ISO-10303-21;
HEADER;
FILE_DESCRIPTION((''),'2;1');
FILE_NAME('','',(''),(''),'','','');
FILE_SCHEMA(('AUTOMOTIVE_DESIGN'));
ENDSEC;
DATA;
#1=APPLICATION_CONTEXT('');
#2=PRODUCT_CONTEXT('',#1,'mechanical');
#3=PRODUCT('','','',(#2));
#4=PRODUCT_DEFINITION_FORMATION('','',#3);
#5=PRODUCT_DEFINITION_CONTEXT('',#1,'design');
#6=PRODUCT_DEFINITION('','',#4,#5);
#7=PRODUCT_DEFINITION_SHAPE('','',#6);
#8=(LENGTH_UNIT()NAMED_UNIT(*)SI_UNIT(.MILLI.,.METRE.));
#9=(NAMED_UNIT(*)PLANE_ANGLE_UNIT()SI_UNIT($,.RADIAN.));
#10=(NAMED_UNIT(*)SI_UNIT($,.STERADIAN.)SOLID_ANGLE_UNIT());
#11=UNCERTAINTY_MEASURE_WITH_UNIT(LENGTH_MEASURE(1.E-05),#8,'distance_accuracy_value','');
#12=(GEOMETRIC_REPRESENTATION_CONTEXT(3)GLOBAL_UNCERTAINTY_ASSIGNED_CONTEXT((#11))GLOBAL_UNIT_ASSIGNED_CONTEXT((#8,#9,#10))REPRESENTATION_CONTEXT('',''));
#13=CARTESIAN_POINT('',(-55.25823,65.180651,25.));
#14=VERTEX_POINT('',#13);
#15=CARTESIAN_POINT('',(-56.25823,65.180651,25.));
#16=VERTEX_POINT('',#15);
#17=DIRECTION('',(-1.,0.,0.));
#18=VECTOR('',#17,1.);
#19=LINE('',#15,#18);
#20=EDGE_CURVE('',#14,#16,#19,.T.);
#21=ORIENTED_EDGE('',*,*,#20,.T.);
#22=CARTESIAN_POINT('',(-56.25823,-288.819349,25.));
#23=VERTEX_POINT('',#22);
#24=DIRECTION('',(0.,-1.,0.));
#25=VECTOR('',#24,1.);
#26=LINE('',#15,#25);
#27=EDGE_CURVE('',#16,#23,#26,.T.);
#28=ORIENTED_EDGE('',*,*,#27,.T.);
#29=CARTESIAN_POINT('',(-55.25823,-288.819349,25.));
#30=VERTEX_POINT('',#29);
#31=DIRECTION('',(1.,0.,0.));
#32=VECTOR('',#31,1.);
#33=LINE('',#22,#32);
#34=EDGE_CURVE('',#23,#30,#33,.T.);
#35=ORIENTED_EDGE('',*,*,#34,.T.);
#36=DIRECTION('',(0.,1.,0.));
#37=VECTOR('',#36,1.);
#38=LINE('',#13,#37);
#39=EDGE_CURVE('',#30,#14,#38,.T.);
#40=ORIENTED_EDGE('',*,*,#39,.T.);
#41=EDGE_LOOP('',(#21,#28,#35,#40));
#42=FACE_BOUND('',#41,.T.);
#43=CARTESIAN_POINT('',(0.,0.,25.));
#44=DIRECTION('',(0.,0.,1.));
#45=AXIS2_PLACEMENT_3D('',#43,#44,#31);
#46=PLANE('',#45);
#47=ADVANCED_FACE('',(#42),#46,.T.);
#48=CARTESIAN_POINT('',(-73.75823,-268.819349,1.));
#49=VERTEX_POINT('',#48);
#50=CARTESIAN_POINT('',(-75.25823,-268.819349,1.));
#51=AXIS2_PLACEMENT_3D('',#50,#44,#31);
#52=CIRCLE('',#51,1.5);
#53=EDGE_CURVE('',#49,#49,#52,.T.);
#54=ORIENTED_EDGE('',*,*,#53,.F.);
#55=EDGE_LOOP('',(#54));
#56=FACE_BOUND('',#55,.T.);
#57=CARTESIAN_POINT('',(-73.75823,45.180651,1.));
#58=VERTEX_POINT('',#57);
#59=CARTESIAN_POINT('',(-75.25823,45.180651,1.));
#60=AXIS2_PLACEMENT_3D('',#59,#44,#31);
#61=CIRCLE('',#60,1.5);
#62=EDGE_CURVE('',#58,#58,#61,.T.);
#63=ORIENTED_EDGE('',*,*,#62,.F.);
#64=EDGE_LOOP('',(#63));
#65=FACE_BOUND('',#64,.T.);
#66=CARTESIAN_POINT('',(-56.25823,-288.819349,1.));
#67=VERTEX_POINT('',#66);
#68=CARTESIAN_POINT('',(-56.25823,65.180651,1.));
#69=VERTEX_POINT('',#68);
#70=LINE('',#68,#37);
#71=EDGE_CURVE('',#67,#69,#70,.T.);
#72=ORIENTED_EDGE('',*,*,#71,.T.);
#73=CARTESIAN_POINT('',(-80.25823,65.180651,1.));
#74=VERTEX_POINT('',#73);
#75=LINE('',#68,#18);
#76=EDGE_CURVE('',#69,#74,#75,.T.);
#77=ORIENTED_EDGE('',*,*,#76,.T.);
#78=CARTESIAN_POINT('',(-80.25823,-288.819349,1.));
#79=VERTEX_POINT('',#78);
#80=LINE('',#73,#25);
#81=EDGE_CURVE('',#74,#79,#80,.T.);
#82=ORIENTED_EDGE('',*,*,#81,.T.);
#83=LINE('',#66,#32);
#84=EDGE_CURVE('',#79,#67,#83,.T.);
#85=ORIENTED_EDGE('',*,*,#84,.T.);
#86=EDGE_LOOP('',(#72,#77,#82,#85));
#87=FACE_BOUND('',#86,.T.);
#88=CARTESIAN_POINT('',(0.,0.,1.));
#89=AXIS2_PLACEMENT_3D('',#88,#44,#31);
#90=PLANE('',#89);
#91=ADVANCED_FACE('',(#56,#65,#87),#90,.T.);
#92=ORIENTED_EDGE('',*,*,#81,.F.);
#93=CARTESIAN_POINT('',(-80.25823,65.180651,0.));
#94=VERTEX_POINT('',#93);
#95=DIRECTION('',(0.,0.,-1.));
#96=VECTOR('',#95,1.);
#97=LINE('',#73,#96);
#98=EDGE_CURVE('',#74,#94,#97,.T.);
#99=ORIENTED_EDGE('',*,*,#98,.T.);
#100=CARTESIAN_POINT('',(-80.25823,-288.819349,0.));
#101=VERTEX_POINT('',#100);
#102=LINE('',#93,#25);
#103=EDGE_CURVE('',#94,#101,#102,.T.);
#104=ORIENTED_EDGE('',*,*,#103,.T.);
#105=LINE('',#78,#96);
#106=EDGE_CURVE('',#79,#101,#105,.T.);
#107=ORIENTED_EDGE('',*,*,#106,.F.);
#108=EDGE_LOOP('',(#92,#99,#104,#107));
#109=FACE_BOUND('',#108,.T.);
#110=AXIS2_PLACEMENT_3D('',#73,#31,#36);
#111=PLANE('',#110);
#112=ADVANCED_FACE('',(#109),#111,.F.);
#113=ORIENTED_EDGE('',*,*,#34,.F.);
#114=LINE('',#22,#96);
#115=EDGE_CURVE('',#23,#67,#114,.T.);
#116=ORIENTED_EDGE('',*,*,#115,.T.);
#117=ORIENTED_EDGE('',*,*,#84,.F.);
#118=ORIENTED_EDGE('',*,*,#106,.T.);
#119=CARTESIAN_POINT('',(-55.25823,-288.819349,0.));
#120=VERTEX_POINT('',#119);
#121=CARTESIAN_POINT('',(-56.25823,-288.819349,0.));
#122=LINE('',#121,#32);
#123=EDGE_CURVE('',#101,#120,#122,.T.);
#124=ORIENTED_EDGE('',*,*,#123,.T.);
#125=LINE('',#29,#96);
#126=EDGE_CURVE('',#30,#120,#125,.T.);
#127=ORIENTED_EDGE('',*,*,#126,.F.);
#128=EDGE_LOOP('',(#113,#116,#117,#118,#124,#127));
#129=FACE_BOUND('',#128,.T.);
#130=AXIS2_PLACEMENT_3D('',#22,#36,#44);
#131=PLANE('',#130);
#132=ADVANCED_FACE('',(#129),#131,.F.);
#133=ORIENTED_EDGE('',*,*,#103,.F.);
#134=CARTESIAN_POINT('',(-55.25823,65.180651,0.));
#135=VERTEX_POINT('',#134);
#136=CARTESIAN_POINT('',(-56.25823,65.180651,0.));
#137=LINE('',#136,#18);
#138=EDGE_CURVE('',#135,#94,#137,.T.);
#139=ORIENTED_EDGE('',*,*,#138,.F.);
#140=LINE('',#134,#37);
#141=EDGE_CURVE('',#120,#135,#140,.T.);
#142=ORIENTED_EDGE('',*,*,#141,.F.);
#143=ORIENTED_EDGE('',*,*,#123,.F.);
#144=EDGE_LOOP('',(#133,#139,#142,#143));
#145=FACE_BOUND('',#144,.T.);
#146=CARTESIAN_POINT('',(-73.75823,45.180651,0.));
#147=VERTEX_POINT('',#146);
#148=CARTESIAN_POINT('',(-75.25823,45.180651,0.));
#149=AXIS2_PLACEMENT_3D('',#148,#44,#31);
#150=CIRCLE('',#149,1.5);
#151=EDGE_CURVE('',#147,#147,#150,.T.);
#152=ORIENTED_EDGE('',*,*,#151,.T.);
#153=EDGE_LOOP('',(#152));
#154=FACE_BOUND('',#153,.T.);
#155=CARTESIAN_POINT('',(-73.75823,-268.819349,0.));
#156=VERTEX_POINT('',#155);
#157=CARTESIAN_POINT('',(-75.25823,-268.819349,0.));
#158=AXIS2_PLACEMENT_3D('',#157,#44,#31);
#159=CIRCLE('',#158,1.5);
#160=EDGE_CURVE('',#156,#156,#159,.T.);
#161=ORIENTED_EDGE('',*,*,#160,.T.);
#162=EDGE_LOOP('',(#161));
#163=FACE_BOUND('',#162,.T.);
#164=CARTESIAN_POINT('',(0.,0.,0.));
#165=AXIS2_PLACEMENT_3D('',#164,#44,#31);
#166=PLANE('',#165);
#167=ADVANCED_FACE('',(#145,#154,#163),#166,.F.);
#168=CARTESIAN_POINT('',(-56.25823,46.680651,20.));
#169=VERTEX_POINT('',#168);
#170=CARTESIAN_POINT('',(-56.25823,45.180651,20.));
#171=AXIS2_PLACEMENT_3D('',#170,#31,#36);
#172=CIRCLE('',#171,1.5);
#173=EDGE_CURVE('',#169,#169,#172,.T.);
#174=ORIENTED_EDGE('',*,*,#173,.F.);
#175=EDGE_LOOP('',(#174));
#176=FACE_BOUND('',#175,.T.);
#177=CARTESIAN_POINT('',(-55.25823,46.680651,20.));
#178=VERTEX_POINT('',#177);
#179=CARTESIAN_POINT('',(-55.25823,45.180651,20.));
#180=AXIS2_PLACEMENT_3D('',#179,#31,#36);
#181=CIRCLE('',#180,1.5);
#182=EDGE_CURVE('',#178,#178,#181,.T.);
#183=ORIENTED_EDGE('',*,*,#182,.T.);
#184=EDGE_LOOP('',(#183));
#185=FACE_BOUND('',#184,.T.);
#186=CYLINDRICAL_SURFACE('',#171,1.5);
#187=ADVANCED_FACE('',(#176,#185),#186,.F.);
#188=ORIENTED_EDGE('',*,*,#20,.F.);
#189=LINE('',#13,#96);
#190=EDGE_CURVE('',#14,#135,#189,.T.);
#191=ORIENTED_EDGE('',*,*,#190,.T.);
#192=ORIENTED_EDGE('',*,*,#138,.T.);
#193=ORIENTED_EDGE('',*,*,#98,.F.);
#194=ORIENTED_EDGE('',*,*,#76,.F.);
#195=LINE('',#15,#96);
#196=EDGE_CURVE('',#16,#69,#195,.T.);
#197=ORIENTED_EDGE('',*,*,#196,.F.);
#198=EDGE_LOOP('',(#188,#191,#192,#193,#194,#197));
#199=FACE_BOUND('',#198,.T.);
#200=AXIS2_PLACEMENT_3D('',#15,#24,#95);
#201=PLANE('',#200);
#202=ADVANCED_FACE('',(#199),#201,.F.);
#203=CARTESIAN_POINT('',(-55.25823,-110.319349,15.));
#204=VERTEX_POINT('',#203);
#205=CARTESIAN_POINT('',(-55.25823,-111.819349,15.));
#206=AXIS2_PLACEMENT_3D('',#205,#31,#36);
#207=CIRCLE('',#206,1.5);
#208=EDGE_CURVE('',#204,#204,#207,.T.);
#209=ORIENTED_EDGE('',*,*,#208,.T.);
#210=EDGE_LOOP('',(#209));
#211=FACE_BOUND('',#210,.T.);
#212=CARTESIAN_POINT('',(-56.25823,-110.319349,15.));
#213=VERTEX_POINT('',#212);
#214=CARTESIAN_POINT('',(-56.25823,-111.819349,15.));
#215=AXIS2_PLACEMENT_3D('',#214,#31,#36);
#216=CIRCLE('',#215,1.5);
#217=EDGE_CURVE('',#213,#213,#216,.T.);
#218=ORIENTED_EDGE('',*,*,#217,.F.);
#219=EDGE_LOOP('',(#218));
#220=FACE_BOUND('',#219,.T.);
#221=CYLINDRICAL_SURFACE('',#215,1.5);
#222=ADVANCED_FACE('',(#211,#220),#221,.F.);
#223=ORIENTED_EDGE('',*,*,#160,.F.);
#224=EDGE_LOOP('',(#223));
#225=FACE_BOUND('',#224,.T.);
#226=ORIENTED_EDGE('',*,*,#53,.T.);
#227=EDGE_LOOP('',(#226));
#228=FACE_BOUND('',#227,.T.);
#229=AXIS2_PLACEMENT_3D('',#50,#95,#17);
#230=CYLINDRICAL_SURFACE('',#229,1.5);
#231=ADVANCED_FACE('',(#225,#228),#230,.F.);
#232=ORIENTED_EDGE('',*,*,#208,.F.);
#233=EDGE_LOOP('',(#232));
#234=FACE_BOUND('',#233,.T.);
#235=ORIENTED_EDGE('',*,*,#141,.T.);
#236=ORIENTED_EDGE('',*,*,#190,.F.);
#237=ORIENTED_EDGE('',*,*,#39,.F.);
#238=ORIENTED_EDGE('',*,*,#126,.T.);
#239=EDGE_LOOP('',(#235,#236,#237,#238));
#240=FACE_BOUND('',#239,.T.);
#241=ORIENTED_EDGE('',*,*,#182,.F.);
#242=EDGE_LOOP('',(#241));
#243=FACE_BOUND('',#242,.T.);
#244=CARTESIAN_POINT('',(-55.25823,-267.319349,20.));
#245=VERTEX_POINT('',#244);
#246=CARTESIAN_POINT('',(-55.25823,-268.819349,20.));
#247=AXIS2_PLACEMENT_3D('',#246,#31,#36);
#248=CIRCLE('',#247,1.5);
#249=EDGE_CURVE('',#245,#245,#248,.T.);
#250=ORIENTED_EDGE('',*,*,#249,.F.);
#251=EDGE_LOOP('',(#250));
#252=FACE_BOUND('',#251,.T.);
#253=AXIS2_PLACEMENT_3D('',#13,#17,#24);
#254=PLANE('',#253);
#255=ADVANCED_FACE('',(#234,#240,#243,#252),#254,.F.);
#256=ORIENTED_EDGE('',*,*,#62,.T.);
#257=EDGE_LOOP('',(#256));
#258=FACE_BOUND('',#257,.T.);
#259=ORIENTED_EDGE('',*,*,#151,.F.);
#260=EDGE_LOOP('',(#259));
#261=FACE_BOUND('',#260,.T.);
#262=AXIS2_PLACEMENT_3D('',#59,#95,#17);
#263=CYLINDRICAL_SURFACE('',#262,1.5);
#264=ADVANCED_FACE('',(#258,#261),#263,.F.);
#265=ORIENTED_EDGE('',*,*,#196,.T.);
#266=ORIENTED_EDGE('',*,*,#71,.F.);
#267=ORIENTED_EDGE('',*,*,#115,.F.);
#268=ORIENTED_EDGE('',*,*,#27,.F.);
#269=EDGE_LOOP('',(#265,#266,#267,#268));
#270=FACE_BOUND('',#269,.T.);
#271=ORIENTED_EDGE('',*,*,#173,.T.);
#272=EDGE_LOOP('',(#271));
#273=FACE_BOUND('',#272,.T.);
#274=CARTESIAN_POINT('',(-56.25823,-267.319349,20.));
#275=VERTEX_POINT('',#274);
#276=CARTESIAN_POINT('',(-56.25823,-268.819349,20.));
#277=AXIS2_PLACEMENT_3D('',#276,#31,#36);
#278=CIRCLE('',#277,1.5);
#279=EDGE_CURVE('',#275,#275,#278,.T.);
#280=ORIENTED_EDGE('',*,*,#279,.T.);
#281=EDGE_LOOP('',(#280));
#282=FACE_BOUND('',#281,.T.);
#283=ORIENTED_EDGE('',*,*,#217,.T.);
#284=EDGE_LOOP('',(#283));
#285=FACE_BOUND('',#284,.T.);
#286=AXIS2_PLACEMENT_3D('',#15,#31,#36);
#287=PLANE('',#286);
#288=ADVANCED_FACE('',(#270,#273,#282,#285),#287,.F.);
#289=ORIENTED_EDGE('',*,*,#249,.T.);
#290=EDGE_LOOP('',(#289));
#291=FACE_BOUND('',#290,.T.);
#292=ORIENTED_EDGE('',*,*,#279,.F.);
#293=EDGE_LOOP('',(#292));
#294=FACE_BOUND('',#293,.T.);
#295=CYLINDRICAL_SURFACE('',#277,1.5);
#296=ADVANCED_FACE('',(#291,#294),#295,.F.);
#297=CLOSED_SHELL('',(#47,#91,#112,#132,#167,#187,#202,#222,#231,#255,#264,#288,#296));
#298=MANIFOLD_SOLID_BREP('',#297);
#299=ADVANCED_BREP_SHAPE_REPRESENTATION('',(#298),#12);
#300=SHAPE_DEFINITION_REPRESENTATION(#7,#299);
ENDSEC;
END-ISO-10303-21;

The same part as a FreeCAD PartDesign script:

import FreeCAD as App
import Part
import Sketcher

V = App.Vector


def add_polygon(sketch, points):
    """Adds a closed chain of lines whose ends are joined by coincident constraints."""
    first, n = sketch.GeometryCount, len(points)
    for a, b in zip(points, points[1:] + points[:1]):
        sketch.addGeometry(Part.LineSegment(App.Vector(*a, 0), App.Vector(*b, 0)), False)
    for i in range(n):
        sketch.addConstraint(Sketcher.Constraint("Coincident", first + i, 2, first + (i + 1) % n, 1))

doc = App.newDocument("Part")
body = doc.addObject("PartDesign::Body", "Body")

sketch1 = body.newObject("Sketcher::SketchObject", "Sketch")
sketch1.AttachmentSupport = (doc.getObject("XY_Plane"), [""])
sketch1.MapMode = "FlatFace"
add_polygon(sketch1, [(-56.3, 65.2), (-56.3, -288.8), (-55.3, -288.8), (-55.3, 65.2)])
sketch1.addConstraint(Sketcher.Constraint("Vertical", 0))
sketch1.addConstraint(Sketcher.Constraint("Horizontal", 1))
sketch1.addConstraint(Sketcher.Constraint("Vertical", 2))
sketch1.addConstraint(Sketcher.Constraint("Horizontal", 3))
sketch1.addConstraint(Sketcher.Constraint("DistanceX", 1, 1, 1, 2, 1.0))
sketch1.addConstraint(Sketcher.Constraint("DistanceY", 0, 2, 0, 1, 354.0))
sketch1.addConstraint(Sketcher.Constraint("DistanceX", 0, 2, -1, 1, 56.25823))
sketch1.addConstraint(Sketcher.Constraint("DistanceY", 0, 2, -1, 1, 288.819349))
pad1 = body.newObject("PartDesign::Pad", "Pad")
pad1.Profile = sketch1
pad1.Length = 25

sketch2 = body.newObject("Sketcher::SketchObject", "Sketch001")
sketch2.AttachmentSupport = (doc.getObject("YZ_Plane"), [""])
sketch2.MapMode = "FlatFace"
sketch2.AttachmentOffset = App.Placement(V(0, 0, -55.25823), App.Rotation())
sketch2.addGeometry(Part.Circle(V(45.2, 20, 0), V(0, 0, 1), 1.5), False)
sketch2.addGeometry(Part.Circle(V(-268.8, 20, 0), V(0, 0, 1), 1.5), False)
sketch2.addGeometry(Part.Circle(V(-111.8, 15, 0), V(0, 0, 1), 1.5), False)
sketch2.addConstraint(Sketcher.Constraint("Equal", 0, 1))
sketch2.addConstraint(Sketcher.Constraint("Equal", 1, 2))
sketch2.addConstraint(Sketcher.Constraint("Horizontal", 0, 3, 1, 3))
sketch2.addConstraint(Sketcher.Constraint("Diameter", 0, 3.0))
sketch2.addConstraint(Sketcher.Constraint("DistanceY", -1, 1, 0, 3, 20.0))
sketch2.addConstraint(Sketcher.Constraint("DistanceY", -1, 1, 2, 3, 15.0))
sketch2.addConstraint(Sketcher.Constraint("DistanceX", 1, 3, 0, 3, 314.0))
sketch2.addConstraint(Sketcher.Constraint("DistanceX", 2, 3, 0, 3, 157.0))
sketch2.addConstraint(Sketcher.Constraint("DistanceX", -1, 1, 0, 3, 45.180651))
pocket1 = body.newObject("PartDesign::Pocket", "Pocket")
pocket1.Profile = sketch2
pocket1.Length = 1

sketch3 = body.newObject("Sketcher::SketchObject", "Sketch002")
sketch3.AttachmentSupport = (doc.getObject("XY_Plane"), [""])
sketch3.MapMode = "FlatFace"
add_polygon(sketch3, [(-80.3, 65.2), (-80.3, -288.8), (-56.3, -288.8), (-56.3, 65.2)])
sketch3.addGeometry(Part.Circle(V(-75.3, -268.8, 0), V(0, 0, 1), 1.5), False)
sketch3.addGeometry(Part.Circle(V(-75.3, 45.2, 0), V(0, 0, 1), 1.5), False)
sketch3.addConstraint(Sketcher.Constraint("Vertical", 0))
sketch3.addConstraint(Sketcher.Constraint("Horizontal", 1))
sketch3.addConstraint(Sketcher.Constraint("Vertical", 2))
sketch3.addConstraint(Sketcher.Constraint("Horizontal", 3))
sketch3.addConstraint(Sketcher.Constraint("Equal", 4, 5))
sketch3.addConstraint(Sketcher.Constraint("Vertical", 4, 3, 5, 3))
sketch3.addConstraint(Sketcher.Constraint("Diameter", 4, 3.0))
sketch3.addConstraint(Sketcher.Constraint("DistanceX", 1, 1, 1, 2, 24.0))
sketch3.addConstraint(Sketcher.Constraint("DistanceY", 0, 2, 0, 1, 354.0))
sketch3.addConstraint(Sketcher.Constraint("DistanceY", 4, 3, 5, 3, 314.0))
sketch3.addConstraint(Sketcher.Constraint("DistanceX", 0, 2, 4, 3, 5.0))
sketch3.addConstraint(Sketcher.Constraint("DistanceY", 0, 2, 4, 3, 20.0))
sketch3.addConstraint(Sketcher.Constraint("DistanceX", 4, 3, -1, 1, 75.25823))
sketch3.addConstraint(Sketcher.Constraint("DistanceY", 4, 3, -1, 1, 268.819349))
pad2 = body.newObject("PartDesign::Pad", "Pad001")
pad2.Profile = sketch3
pad2.Length = 1

doc.recompute()
